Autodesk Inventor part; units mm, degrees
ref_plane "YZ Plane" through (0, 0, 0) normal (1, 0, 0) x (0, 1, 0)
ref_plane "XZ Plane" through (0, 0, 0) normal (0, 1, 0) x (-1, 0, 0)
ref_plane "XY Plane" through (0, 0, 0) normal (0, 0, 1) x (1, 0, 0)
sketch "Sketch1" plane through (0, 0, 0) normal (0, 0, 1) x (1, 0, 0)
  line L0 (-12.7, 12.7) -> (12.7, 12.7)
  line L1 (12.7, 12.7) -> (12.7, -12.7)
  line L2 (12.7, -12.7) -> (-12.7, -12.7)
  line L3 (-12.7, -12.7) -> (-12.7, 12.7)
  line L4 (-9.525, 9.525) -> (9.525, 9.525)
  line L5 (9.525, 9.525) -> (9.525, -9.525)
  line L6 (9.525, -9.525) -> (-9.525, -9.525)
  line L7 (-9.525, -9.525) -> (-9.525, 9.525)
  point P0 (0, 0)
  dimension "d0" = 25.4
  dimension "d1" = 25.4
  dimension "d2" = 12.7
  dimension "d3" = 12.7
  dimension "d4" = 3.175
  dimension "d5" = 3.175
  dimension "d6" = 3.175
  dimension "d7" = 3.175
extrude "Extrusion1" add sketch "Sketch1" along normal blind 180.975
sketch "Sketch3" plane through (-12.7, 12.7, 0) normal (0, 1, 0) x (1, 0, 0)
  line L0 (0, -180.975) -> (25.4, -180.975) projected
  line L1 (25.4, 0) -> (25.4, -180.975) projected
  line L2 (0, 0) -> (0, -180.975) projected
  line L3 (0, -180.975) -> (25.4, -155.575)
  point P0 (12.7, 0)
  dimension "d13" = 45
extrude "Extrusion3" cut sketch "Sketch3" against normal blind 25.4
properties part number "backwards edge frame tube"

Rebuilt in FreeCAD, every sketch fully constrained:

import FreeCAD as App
import Part
import Sketcher
from FreeCAD import Vector
Q = App.Units.Quantity


def add_polygon(sketch, points):
    """Adds a closed chain of lines whose ends are joined by coincident constraints."""
    first, n = sketch.GeometryCount, len(points)
    for a, b in zip(points, points[1:] + points[:1]):
        sketch.addGeometry(Part.LineSegment(App.Vector(*a, 0), App.Vector(*b, 0)), False)
    for i in range(n):
        sketch.addConstraint(Sketcher.Constraint("Coincident", first + i, 2, first + (i + 1) % n, 1))

doc = App.newDocument("Part")
body = doc.addObject("PartDesign::Body", "Body")

# Sketch on XY plane
sketch1 = doc.addObject("Sketcher::SketchObject", "Sketch")
body.addObject(sketch1)
sketch1.AttachmentSupport = (doc.XY_Plane, [""])
sketch1.MapMode = "FlatFace"
add_polygon(sketch1, [(13, 13), (-13, 13), (-13, -13), (13, -13)])  # lines 0-3
add_polygon(sketch1, [(-10, -10), (-10, 10), (10, 10), (10, -10)])  # lines 4-7
sketch1.addConstraint([
    Sketcher.Constraint("Horizontal", 0),
    Sketcher.Constraint("Vertical", 1),
    Sketcher.Constraint("Horizontal", 2),
    Sketcher.Constraint("Vertical", 3),
    Sketcher.Constraint("Vertical", 4),
    Sketcher.Constraint("Horizontal", 5),
    Sketcher.Constraint("Vertical", 6),
    Sketcher.Constraint("Horizontal", 7),
    Sketcher.Constraint("Symmetric", 0, 2, 2, 2, -1, 1),
    Sketcher.Constraint("Symmetric", 4, 2, 6, 2, -1, 1),
    Sketcher.Constraint("Equal", 2, 1),
    Sketcher.Constraint("Equal", 7, 4),
    Sketcher.Constraint("DistanceX", 0, 2, 0, 1, Q("1 in")),
    Sketcher.Constraint("DistanceX", 0, 2, 4, 2, Q("0.125 in")),
])
pad1 = doc.addObject("PartDesign::Pad", "Pad")
body.addObject(pad1)
pad1.Profile = sketch1
pad1.Length = Q("7.125 in")

# Sketch on XZ plane
sketch2 = doc.addObject("Sketcher::SketchObject", "Sketch001")
body.addObject(sketch2)
sketch2.AttachmentSupport = (doc.XZ_Plane, [""])
sketch2.MapMode = "FlatFace"
sketch2.AttachmentOffset = App.Placement(Vector(0, 0, -0.5 * 25.4), App.Rotation())
add_polygon(sketch2, [(13, 156), (-13, 181), (13, 181)])  # lines 0-2
sketch2.addConstraint([
    Sketcher.Constraint("Horizontal", 1),
    Sketcher.Constraint("Vertical", 2),
    Sketcher.Constraint("Equal", 1, 2),
    Sketcher.Constraint("DistanceX", 1, 1, 1, 2, Q("1 in")),
    Sketcher.Constraint("DistanceX", 0, 2, -1, 1, Q("0.5 in")),
    Sketcher.Constraint("DistanceY", -1, 1, 0, 2, Q("7.125 in")),
])
pocket1 = doc.addObject("PartDesign::Pocket", "Pocket")
body.addObject(pocket1)
pocket1.Profile = sketch2
pocket1.Length = Q("1 in")
pocket1.Reversed = True

doc.recompute()
